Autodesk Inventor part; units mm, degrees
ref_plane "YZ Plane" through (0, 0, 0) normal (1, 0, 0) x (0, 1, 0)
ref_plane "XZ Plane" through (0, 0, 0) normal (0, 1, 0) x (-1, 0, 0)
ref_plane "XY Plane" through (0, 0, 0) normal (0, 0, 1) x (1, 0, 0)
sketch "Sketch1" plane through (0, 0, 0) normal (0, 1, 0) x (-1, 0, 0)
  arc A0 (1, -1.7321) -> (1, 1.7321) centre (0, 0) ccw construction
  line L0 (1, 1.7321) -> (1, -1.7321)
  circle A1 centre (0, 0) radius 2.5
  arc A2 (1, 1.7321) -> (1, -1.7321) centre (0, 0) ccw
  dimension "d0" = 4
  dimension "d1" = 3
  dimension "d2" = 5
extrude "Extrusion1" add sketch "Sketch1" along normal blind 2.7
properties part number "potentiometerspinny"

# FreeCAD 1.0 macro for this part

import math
import FreeCAD as App
import Part
import Sketcher
from FreeCAD import Vector
Q = App.Units.Quantity

doc = App.newDocument("Part")
body = doc.addObject("PartDesign::Body", "Body")

# Sketch on XZ plane
sketch1 = doc.addObject("Sketcher::SketchObject", "Sketch")
body.addObject(sketch1)
sketch1.AttachmentSupport = (doc.XZ_Plane, [""])
sketch1.MapMode = "FlatFace"
sketch1.addGeometry([
    Part.Circle(Vector(0, 0, 0), Vector(0, 0, 1), 2.5),
    Part.ArcOfCircle(Part.Circle(Vector(0, 0, 0), Vector(0, 0, 1), 2), math.radians(-120), math.radians(120)),
    Part.LineSegment(Vector(-1, 1.7, 0), Vector(-1, -1.7, 0)),
], False)
sketch1.addConstraint([
    Sketcher.Constraint("Coincident", 1, 1, 2, 2),
    Sketcher.Constraint("Coincident", 2, 1, 1, 2),
    Sketcher.Constraint("Vertical", 2),
    Sketcher.Constraint("Coincident", 0, 3, -1, 1),
    Sketcher.Constraint("Coincident", 1, 3, -1, 1),
    Sketcher.Constraint("Diameter", 0, Q("5 mm")),
    Sketcher.Constraint("Radius", 1, Q("2 mm")),
    Sketcher.Constraint("DistanceX", 1, 1, -1, 1, Q("1 mm")),
])
pad1 = doc.addObject("PartDesign::Pad", "Pad")
body.addObject(pad1)
pad1.Profile = sketch1
pad1.Length = 2.7
pad1.Reversed = True

doc.recompute()
